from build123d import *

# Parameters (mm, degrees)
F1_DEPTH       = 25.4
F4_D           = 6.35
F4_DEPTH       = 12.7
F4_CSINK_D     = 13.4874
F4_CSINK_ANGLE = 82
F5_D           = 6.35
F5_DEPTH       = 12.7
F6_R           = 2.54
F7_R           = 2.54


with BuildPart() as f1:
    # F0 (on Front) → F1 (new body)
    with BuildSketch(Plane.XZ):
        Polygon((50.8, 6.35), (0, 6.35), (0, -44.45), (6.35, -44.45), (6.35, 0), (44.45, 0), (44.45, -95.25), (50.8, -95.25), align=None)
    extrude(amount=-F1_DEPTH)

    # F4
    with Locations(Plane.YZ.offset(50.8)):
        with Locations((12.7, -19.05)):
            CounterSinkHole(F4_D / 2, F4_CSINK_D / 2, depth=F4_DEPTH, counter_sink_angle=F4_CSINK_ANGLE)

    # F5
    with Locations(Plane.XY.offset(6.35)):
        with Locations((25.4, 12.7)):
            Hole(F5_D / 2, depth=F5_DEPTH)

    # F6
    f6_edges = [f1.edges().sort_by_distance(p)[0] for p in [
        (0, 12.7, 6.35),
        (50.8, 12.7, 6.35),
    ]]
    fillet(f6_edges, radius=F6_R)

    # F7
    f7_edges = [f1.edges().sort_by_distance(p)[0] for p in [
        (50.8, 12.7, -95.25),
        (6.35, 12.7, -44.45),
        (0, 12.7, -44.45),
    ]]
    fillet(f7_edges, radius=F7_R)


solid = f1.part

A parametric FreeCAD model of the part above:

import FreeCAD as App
import Part
import Sketcher

V = App.Vector
Q = App.Units.Quantity


def edges_at(feature, points):
    """Names of the edges that pass closest to the given points."""
    edges = feature.Shape.Edges
    near = lambda p: min(range(len(edges)), key=lambda i: edges[i].distToShape(Part.Vertex(*p))[0])
    return sorted({f"Edge{near(p) + 1}" for p in points})


def add_polygon(sketch, points):
    """Adds a closed chain of lines whose ends are joined by coincident constraints."""
    first, n = sketch.GeometryCount, len(points)
    for a, b in zip(points, points[1:] + points[:1]):
        sketch.addGeometry(Part.LineSegment(App.Vector(*a, 0), App.Vector(*b, 0)), False)
    for i in range(n):
        sketch.addConstraint(Sketcher.Constraint("Coincident", first + i, 2, first + (i + 1) % n, 1))

doc = App.newDocument("Part")
params = doc.addObject("Spreadsheet::Sheet", "Params")
for row, (alias, value) in enumerate([
    ("sketch1_width", "2 in"),
    ("sketch1_height", "4 in"),
    ("sketch1_width2", "1.5 in"),
    ("sketch1_height2", "1.75 in"),
    ("pad1_length", "1 in"),
    ("sketch2_diameter", "0.25 in"),
    ("hole_diameter", "0.25 in"),
    ("hole_depth", "0.5 in"),
    ("hole_csink_diameter", "0.531 in"),
    ("sketch3_diameter", "0.25 in"),
    ("hole2_diameter", "0.25 in"),
    ("hole2_depth", "0.5 in"),
    ("fillet_radius", "0.1 in"),
    ("fillet2_radius", "0.1 in"),
], start=1):
    params.set(f"A{row}", alias)
    params.set(f"B{row}", "=" + value)
    params.setAlias(f"B{row}", alias)

body = doc.addObject("PartDesign::Body", "Body")

# Sketch on XZ plane
sketch1 = body.newObject("Sketcher::SketchObject", "Sketch")
sketch1.AttachmentSupport = (doc.getObject("XZ_Plane"), [""])
sketch1.MapMode = "FlatFace"
add_polygon(sketch1, [(50.8, 6.35), (0, 6.35), (0, -44.45), (6.35, -44.45), (6.35, 0), (44.45, 0), (44.45, -95.25), (50.8, -95.25)])  # lines 0-7
sketch1.addConstraint([
    Sketcher.Constraint("Horizontal", 0),
    Sketcher.Constraint("Vertical", 1),
    Sketcher.Constraint("Horizontal", 2),
    Sketcher.Constraint("Vertical", 3),
    Sketcher.Constraint("Horizontal", 4),
    Sketcher.Constraint("Vertical", 5),
    Sketcher.Constraint("Horizontal", 6),
    Sketcher.Constraint("Vertical", 7),
    Sketcher.Constraint("PointOnObject", 0, 2, -2),
    Sketcher.Constraint("PointOnObject", 3, 2, -1),
    Sketcher.Constraint("Equal", 2, 6),
    Sketcher.Constraint("Equal", 0, 1),
    Sketcher.Constraint("DistanceX", 0, 2, 0, 1, Q("2 in")),
    Sketcher.Constraint("DistanceY", 7, 1, 7, 2, Q("4 in")),
    Sketcher.Constraint("DistanceX", 4, 1, 4, 2, Q("1.5 in")),
    Sketcher.Constraint("DistanceY", 3, 1, 3, 2, Q("1.75 in")),
])
sketch1.setExpression("Constraints[20]", "Params.sketch1_width")
sketch1.setExpression("Constraints[21]", "Params.sketch1_height")
sketch1.setExpression("Constraints[22]", "Params.sketch1_width2")
sketch1.setExpression("Constraints[23]", "Params.sketch1_height2")
pad1 = body.newObject("PartDesign::Pad", "Pad")
pad1.Profile = sketch1
pad1.setExpression("Length", "Params.pad1_length")
pad1.Reversed = True

# Sketch on YZ plane
sketch2 = body.newObject("Sketcher::SketchObject", "Sketch001")
sketch2.AttachmentSupport = (doc.getObject("YZ_Plane"), [""])
sketch2.MapMode = "FlatFace"
sketch2.AttachmentOffset = App.Placement(V(0, 0, 2 * 25.4), App.Rotation())
sketch2.addGeometry(Part.Circle(V(12.7, -19.05, 0), V(0, 0, 1), 3.175), False)
sketch2.addConstraint([
    Sketcher.Constraint("Diameter", 0, Q("0.25 in")),
    Sketcher.Constraint("DistanceX", -1, 1, 0, 3, Q("0.5 in")),
    Sketcher.Constraint("DistanceY", 0, 3, -1, 1, Q("0.75 in")),
])
sketch2.setExpression("Constraints[0]", "Params.sketch2_diameter")
doc.recompute()
hole = body.newObject("PartDesign::Hole", "Hole")
hole.Profile = sketch2
hole.ThreadType = "None"
hole.setExpression("Diameter", "Params.hole_diameter")
hole.DepthType = "Dimension"
hole.setExpression("Depth", "Params.hole_depth")
hole.DrillPoint = "Flat"
hole.HoleCutType = "Countersink"
hole.setExpression("HoleCutDiameter", "Params.hole_csink_diameter")
hole.HoleCutCountersinkAngle = 82

# Sketch on XY plane
sketch3 = body.newObject("Sketcher::SketchObject", "Sketch002")
sketch3.AttachmentSupport = (doc.getObject("XY_Plane"), [""])
sketch3.MapMode = "FlatFace"
sketch3.AttachmentOffset = App.Placement(V(0, 0, 0.25 * 25.4), App.Rotation())
sketch3.addGeometry(Part.Circle(V(25.4, 12.7, 0), V(0, 0, 1), 3.175), False)
sketch3.addConstraint([
    Sketcher.Constraint("Diameter", 0, Q("0.25 in")),
    Sketcher.Constraint("DistanceX", -1, 1, 0, 3, Q("1 in")),
    Sketcher.Constraint("DistanceY", -1, 1, 0, 3, Q("0.5 in")),
])
sketch3.setExpression("Constraints[0]", "Params.sketch3_diameter")
doc.recompute()
hole2 = body.newObject("PartDesign::Hole", "Hole001")
hole2.Profile = sketch3
hole2.ThreadType = "None"
hole2.setExpression("Diameter", "Params.hole2_diameter")
hole2.DepthType = "Dimension"
hole2.setExpression("Depth", "Params.hole2_depth")
hole2.DrillPoint = "Flat"
doc.recompute()

fillet = body.newObject("PartDesign::Fillet", "Fillet")
fillet.Base = (hole2, edges_at(hole2, [(0, 12.7, 6.35), (50.8, 12.7, 6.35)]))
fillet.setExpression("Radius", "Params.fillet_radius")
doc.recompute()

fillet2 = body.newObject("PartDesign::Fillet", "Fillet001")
fillet2.Base = (fillet, edges_at(fillet, [(50.8, 12.7, -95.25), (6.35, 12.7, -44.45), (0, 12.7, -44.45)]))
fillet2.setExpression("Radius", "Params.fillet2_radius")

doc.recompute()
